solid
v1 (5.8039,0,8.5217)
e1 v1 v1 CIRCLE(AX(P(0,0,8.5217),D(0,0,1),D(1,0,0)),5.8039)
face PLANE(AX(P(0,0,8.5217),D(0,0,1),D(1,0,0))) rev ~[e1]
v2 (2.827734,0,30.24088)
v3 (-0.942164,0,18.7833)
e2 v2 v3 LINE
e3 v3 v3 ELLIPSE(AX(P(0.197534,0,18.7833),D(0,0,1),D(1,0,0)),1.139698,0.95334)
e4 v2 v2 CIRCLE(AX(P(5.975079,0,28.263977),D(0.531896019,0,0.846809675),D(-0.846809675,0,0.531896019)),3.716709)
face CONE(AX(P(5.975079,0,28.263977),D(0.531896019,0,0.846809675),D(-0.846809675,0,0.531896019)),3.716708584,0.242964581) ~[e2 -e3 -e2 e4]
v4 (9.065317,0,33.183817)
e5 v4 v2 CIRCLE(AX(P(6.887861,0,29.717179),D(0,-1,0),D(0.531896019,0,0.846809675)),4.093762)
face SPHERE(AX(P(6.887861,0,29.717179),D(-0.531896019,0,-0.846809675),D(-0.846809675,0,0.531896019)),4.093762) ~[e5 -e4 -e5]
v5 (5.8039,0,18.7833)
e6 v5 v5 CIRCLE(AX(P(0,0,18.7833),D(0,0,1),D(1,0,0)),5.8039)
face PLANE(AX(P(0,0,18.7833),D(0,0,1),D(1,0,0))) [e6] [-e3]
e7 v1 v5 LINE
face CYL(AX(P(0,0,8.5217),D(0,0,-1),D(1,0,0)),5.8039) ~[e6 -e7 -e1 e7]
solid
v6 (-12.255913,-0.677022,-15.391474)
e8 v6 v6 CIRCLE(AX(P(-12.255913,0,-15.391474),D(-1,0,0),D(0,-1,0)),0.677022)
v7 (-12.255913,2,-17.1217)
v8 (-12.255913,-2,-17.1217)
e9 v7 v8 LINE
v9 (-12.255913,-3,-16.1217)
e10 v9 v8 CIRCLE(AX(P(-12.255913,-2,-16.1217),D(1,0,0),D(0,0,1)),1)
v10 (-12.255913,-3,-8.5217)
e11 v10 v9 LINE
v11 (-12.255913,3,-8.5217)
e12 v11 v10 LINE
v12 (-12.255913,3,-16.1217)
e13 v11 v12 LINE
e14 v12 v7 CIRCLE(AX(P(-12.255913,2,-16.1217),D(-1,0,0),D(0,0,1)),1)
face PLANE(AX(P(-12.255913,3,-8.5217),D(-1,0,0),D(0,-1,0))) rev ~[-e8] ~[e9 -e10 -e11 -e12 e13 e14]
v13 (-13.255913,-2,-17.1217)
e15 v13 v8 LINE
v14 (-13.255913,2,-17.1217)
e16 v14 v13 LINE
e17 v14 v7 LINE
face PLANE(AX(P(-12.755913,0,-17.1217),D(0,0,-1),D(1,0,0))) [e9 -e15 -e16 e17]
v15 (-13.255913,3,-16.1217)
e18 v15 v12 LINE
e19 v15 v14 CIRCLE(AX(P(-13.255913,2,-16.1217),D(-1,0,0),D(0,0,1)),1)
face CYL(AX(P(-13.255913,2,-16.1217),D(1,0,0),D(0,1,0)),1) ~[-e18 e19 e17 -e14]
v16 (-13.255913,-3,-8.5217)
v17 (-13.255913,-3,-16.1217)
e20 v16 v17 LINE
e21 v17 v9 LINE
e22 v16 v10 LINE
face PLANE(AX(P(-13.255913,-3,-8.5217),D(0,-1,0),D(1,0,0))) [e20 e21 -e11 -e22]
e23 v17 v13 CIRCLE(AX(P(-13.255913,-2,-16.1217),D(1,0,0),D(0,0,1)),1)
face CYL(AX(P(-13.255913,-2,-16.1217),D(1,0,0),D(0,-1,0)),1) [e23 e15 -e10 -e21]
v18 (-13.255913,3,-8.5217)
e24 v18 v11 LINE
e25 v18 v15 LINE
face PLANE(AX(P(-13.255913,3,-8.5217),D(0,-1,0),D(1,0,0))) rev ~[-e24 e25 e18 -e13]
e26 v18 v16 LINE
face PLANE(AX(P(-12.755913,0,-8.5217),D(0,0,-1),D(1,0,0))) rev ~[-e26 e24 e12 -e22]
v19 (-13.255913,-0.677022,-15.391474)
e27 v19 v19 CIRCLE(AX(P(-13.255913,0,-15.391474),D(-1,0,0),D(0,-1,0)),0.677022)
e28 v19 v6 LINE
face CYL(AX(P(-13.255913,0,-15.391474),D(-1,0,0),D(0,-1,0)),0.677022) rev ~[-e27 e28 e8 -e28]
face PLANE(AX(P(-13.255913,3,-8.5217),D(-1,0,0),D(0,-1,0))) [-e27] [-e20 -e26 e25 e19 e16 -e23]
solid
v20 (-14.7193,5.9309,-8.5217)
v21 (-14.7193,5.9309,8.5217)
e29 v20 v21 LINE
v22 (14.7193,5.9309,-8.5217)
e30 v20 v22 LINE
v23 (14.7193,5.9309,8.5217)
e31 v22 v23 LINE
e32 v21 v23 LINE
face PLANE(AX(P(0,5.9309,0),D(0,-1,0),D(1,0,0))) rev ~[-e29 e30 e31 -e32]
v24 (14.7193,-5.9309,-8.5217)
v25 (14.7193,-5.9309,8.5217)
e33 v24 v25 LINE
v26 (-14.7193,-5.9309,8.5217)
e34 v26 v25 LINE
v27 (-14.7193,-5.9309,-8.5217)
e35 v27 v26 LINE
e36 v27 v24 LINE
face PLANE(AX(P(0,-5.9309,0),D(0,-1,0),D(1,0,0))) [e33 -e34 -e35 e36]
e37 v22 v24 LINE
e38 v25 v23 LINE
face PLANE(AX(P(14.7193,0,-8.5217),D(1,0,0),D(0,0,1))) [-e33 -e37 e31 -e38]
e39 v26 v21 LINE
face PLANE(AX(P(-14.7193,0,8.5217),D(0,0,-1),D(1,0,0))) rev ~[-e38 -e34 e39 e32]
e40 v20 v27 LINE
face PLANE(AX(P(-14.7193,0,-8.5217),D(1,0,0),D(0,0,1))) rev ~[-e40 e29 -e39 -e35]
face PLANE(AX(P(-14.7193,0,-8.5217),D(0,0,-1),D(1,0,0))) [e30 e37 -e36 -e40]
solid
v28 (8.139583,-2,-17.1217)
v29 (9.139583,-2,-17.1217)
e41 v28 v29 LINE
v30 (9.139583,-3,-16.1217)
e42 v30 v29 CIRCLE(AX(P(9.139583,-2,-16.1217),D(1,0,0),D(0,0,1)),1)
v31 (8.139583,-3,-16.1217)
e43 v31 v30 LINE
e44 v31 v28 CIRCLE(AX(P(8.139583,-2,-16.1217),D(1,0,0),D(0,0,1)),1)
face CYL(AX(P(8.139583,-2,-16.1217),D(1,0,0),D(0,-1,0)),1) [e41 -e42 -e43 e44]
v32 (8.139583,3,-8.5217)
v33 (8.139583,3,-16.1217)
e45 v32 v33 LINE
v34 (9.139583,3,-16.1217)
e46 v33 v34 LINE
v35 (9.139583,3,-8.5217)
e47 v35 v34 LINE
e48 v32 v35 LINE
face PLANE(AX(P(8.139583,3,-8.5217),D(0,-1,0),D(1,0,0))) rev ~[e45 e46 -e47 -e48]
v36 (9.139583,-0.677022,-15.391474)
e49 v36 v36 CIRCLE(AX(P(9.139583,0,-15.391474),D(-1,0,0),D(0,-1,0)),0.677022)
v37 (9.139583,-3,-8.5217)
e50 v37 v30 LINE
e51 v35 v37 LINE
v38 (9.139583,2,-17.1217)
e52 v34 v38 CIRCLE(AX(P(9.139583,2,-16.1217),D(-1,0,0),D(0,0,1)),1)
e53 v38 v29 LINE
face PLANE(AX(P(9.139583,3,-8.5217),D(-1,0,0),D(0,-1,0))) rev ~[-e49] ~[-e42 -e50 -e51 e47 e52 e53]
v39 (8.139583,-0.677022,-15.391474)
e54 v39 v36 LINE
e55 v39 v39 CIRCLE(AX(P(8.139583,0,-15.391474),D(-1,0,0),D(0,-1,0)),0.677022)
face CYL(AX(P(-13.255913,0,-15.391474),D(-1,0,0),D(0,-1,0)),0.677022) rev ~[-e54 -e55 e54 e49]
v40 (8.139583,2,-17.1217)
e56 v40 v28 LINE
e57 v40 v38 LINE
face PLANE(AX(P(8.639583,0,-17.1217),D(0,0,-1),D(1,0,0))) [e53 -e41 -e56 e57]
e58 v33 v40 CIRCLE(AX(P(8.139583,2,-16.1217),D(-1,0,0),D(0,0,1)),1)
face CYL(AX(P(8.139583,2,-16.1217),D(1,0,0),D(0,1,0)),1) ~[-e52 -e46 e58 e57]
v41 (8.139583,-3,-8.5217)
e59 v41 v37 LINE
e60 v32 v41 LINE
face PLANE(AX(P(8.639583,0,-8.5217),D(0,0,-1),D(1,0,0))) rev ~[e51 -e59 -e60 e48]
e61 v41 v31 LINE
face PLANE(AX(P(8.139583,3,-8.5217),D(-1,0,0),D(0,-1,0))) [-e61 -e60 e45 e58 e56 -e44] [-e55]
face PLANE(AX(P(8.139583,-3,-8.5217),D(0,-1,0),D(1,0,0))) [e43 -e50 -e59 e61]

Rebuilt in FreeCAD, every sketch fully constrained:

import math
import FreeCAD as App
import Part
import Sketcher
Q = App.Units.Quantity


def edges_at(feature, points):
    """Names of the edges that pass closest to the given points."""
    edges = feature.Shape.Edges
    near = lambda p: min(range(len(edges)), key=lambda i: edges[i].distToShape(Part.Vertex(*p))[0])
    return sorted({f"Edge{near(p) + 1}" for p in points})

doc = App.newDocument("Part")
params = doc.addObject("Spreadsheet::Sheet", "Params")
for row, (alias, value) in enumerate([
    ("pad1_length", "11.8618 mm"),
    ("pad2_length", "10.2616 mm"),
    ("revolution_angle", "360 deg"),
    ("sketch4_width", "1 mm"),
    ("sketch4_height", "6 mm"),
    ("pad3_length", "8.6 mm"),
    ("fillet_radius", "1 mm"),
    ("sketch5_width", "1 mm"),
    ("sketch5_height", "6 mm"),
    ("pad4_length", "8.6 mm"),
    ("fillet2_radius", "1 mm"),
    ("pad5_length", "500 mm"),
], start=1):
    params.set(f"A{row}", alias)
    params.set(f"B{row}", "=" + value)
    params.setAlias(f"B{row}", alias)

body = doc.addObject("PartDesign::Body", "Body")

# Sketch on XZ plane
sketch1 = body.newObject("Sketcher::SketchObject", "Sketch")
sketch1.AttachmentSupport = (doc.getObject("XZ_Plane"), [""])
sketch1.MapMode = "FlatFace"
sketch1.addGeometry(Part.LineSegment(App.Vector(-15, 9, 0), App.Vector(-15, -9, 0)), False)
sketch1.addGeometry(Part.LineSegment(App.Vector(-15, -9, 0), App.Vector(15, -9, 0)), False)
sketch1.addGeometry(Part.LineSegment(App.Vector(15, -9, 0), App.Vector(15, 9, 0)), False)
sketch1.addGeometry(Part.LineSegment(App.Vector(15, 9, 0), App.Vector(-15, 9, 0)), False)
sketch1.addConstraint(Sketcher.Constraint("Coincident", 0, 2, 1, 1))
sketch1.addConstraint(Sketcher.Constraint("Coincident", 1, 2, 2, 1))
sketch1.addConstraint(Sketcher.Constraint("Coincident", 2, 2, 3, 1))
sketch1.addConstraint(Sketcher.Constraint("Coincident", 3, 2, 0, 1))
sketch1.addConstraint(Sketcher.Constraint("Vertical", 0))
sketch1.addConstraint(Sketcher.Constraint("Horizontal", 1))
sketch1.addConstraint(Sketcher.Constraint("Vertical", 2))
sketch1.addConstraint(Sketcher.Constraint("Horizontal", 3))
sketch1.addConstraint(Sketcher.Constraint("Symmetric", 0, 2, 2, 2, -1, 1))
sketch1.addConstraint(Sketcher.Constraint("DistanceX", 1, 1, 1, 2, Q("29.4386 mm")))
sketch1.addConstraint(Sketcher.Constraint("DistanceY", 0, 2, 0, 1, Q("17.0434 mm")))
pad1 = body.newObject("PartDesign::Pad", "Pad")
pad1.Profile = sketch1
pad1.setExpression("Length", "Params.pad1_length")
pad1.Midplane = True
body2 = doc.addObject("PartDesign::Body", "Body001")

# Sketch on XY plane
sketch2 = body2.newObject("Sketcher::SketchObject", "Sketch001")
sketch2.AttachmentSupport = (doc.getObject("XY_Plane001"), [""])
sketch2.MapMode = "FlatFace"
sketch2.AttachmentOffset = App.Placement(App.Vector(0, 0, 8.5217), App.Rotation())
sketch2.addGeometry(Part.Circle(App.Vector(0, 0, 0), App.Vector(0, 0, 1), 6), False)
sketch2.addConstraint(Sketcher.Constraint("Coincident", 0, 3, -1, 1))
sketch2.addConstraint(Sketcher.Constraint("Diameter", 0, Q("11.6078 mm")))
pad2 = body2.newObject("PartDesign::Pad", "Pad001")
pad2.Profile = sketch2
pad2.setExpression("Length", "Params.pad2_length")

# Sketch on XZ plane
sketch3 = body2.newObject("Sketcher::SketchObject", "Sketch002")
sketch3.AttachmentSupport = (doc.getObject("XZ_Plane001"), [""])
sketch3.MapMode = "FlatFace"
sketch3.addGeometry(Part.LineSegment(App.Vector(-1, 18.8, 0), App.Vector(0, 18.8, 0)), False)
sketch3.addGeometry(Part.LineSegment(App.Vector(0, 18.8, 0), App.Vector(9.1, 33.2, 0)), False)
sketch3.addGeometry(Part.ArcOfCircle(Part.Circle(App.Vector(6.9, 29.7, 0), App.Vector(0, 0, 1), 4.1), math.radians(58), math.radians(173)), False)
sketch3.addGeometry(Part.LineSegment(App.Vector(2.8, 30.2, 0), App.Vector(-1, 18.8, 0)), False)
sketch3.addGeometry(Part.LineSegment(App.Vector(-0.3, 18.3, 0), App.Vector(9.1, 33.2, 0)), True)  # axis
sketch3.addConstraint(Sketcher.Constraint("Coincident", 0, 2, 1, 1))
sketch3.addConstraint(Sketcher.Constraint("Coincident", 1, 2, 2, 1))
sketch3.addConstraint(Sketcher.Constraint("Coincident", 2, 2, 3, 1))
sketch3.addConstraint(Sketcher.Constraint("Coincident", 3, 2, 0, 1))
sketch3.addConstraint(Sketcher.Constraint("Horizontal", 0))
sketch3.addConstraint(Sketcher.Constraint("Coincident", 4, 2, 1, 2))
sketch3.addConstraint(Sketcher.Constraint("PointOnObject", 0, 2, -2))
sketch3.addConstraint(Sketcher.Constraint("Parallel", 1, 4))
sketch3.addConstraint(Sketcher.Constraint("Radius", 2, Q("4.093762 mm")))
sketch3.addConstraint(Sketcher.Constraint("Distance", 1, Q("17.0434 mm")))
sketch3.addConstraint(Sketcher.Constraint("DistanceY", -1, 1, 0, 2, Q("18.751301 mm")))
sketch3.addConstraint(Sketcher.Constraint("DistanceY", 2, 3, 2, 2, Q("0.5237 mm")))
sketch3.addConstraint(Sketcher.Constraint("Distance", 3, Q("12.095538 mm")))
sketch3.addConstraint(Sketcher.Constraint("DistanceX", 0, 1, 0, 2, Q("0.952693 mm")))
sketch3.addConstraint(Sketcher.Constraint("DistanceX", 4, 1, -1, 1, Q("0.26953 mm")))
sketch3.addConstraint(Sketcher.Constraint("DistanceX", 3, 2, 1, 2, Q("10.01801 mm")))
revolution = body2.newObject("PartDesign::Revolution", "Revolution")
revolution.Profile = sketch3
revolution.ReferenceAxis = (sketch3, ["Axis0"])
revolution.setExpression("Angle", "Params.revolution_angle")
body3 = doc.addObject("PartDesign::Body", "Body002")

# Sketch on XY plane
sketch4 = body3.newObject("Sketcher::SketchObject", "Sketch003")
sketch4.AttachmentSupport = (doc.getObject("XY_Plane002"), [""])
sketch4.MapMode = "FlatFace"
sketch4.AttachmentOffset = App.Placement(App.Vector(0, 0, -8.5217), App.Rotation())
sketch4.addGeometry(Part.LineSegment(App.Vector(8.1, -3, 0), App.Vector(8.1, 3, 0)), False)
sketch4.addGeometry(Part.LineSegment(App.Vector(8.1, 3, 0), App.Vector(9.1, 3, 0)), False)
sketch4.addGeometry(Part.LineSegment(App.Vector(9.1, 3, 0), App.Vector(9.1, -3, 0)), False)
sketch4.addGeometry(Part.LineSegment(App.Vector(9.1, -3, 0), App.Vector(8.1, -3, 0)), False)
sketch4.addConstraint(Sketcher.Constraint("Coincident", 0, 2, 1, 1))
sketch4.addConstraint(Sketcher.Constraint("Coincident", 1, 2, 2, 1))
sketch4.addConstraint(Sketcher.Constraint("Coincident", 2, 2, 3, 1))
sketch4.addConstraint(Sketcher.Constraint("Coincident", 3, 2, 0, 1))
sketch4.addConstraint(Sketcher.Constraint("Vertical", 0))
sketch4.addConstraint(Sketcher.Constraint("Horizontal", 1))
sketch4.addConstraint(Sketcher.Constraint("Vertical", 2))
sketch4.addConstraint(Sketcher.Constraint("Horizontal", 3))
sketch4.addConstraint(Sketcher.Constraint("DistanceX", 1, 1, 1, 2, Q("1 mm")))
sketch4.addConstraint(Sketcher.Constraint("DistanceY", 0, 1, 0, 2, Q("6 mm")))
sketch4.addConstraint(Sketcher.Constraint("DistanceY", -1, 1, 0, 2, Q("3 mm")))
sketch4.addConstraint(Sketcher.Constraint("DistanceX", -1, 1, 0, 2, Q("8.139583 mm")))
sketch4.setExpression("Constraints[8]", "Params.sketch4_width")
sketch4.setExpression("Constraints[9]", "Params.sketch4_height")
pad3 = body3.newObject("PartDesign::Pad", "Pad002")
pad3.Profile = sketch4
pad3.setExpression("Length", "Params.pad3_length")
pad3.Reversed = True
doc.recompute()

fillet = body3.newObject("PartDesign::Fillet", "Fillet")
fillet.Base = (pad3, edges_at(pad3, [(8.64, 3, -17.122), (8.64, -3, -17.122)]))
fillet.setExpression("Radius", "Params.fillet_radius")
body4 = doc.addObject("PartDesign::Body", "Body003")

# Sketch on XY plane
sketch5 = body4.newObject("Sketcher::SketchObject", "Sketch004")
sketch5.AttachmentSupport = (doc.getObject("XY_Plane003"), [""])
sketch5.MapMode = "FlatFace"
sketch5.AttachmentOffset = App.Placement(App.Vector(0, 0, -8.5217), App.Rotation())
sketch5.addGeometry(Part.LineSegment(App.Vector(-13.3, -3, 0), App.Vector(-13.3, 3, 0)), False)
sketch5.addGeometry(Part.LineSegment(App.Vector(-13.3, 3, 0), App.Vector(-12.3, 3, 0)), False)
sketch5.addGeometry(Part.LineSegment(App.Vector(-12.3, 3, 0), App.Vector(-12.3, -3, 0)), False)
sketch5.addGeometry(Part.LineSegment(App.Vector(-12.3, -3, 0), App.Vector(-13.3, -3, 0)), False)
sketch5.addConstraint(Sketcher.Constraint("Coincident", 0, 2, 1, 1))
sketch5.addConstraint(Sketcher.Constraint("Coincident", 1, 2, 2, 1))
sketch5.addConstraint(Sketcher.Constraint("Coincident", 2, 2, 3, 1))
sketch5.addConstraint(Sketcher.Constraint("Coincident", 3, 2, 0, 1))
sketch5.addConstraint(Sketcher.Constraint("Vertical", 0))
sketch5.addConstraint(Sketcher.Constraint("Horizontal", 1))
sketch5.addConstraint(Sketcher.Constraint("Vertical", 2))
sketch5.addConstraint(Sketcher.Constraint("Horizontal", 3))
sketch5.addConstraint(Sketcher.Constraint("DistanceX", 1, 1, 1, 2, Q("1 mm")))
sketch5.addConstraint(Sketcher.Constraint("DistanceY", 0, 1, 0, 2, Q("6 mm")))
sketch5.addConstraint(Sketcher.Constraint("DistanceY", -1, 1, 0, 2, Q("3 mm")))
sketch5.addConstraint(Sketcher.Constraint("DistanceX", 0, 2, -1, 1, Q("13.255913 mm")))
sketch5.setExpression("Constraints[8]", "Params.sketch5_width")
sketch5.setExpression("Constraints[9]", "Params.sketch5_height")
pad4 = body4.newObject("PartDesign::Pad", "Pad003")
pad4.Profile = sketch5
pad4.setExpression("Length", "Params.pad4_length")
pad4.Reversed = True
doc.recompute()

fillet2 = body4.newObject("PartDesign::Fillet", "Fillet001")
fillet2.Base = (pad4, edges_at(pad4, [(-12.756, -3, -17.122), (-12.756, 3, -17.122)]))
fillet2.setExpression("Radius", "Params.fillet2_radius")
body5 = doc.addObject("PartDesign::Body", "Body004")

# Sketch on YZ plane
sketch6 = body5.newObject("Sketcher::SketchObject", "Sketch005")
sketch6.AttachmentSupport = (doc.getObject("YZ_Plane004"), [""])
sketch6.MapMode = "FlatFace"
sketch6.AttachmentOffset = App.Placement(App.Vector(0, 0, -13.255913), App.Rotation())
sketch6.addGeometry(Part.Circle(App.Vector(0, -15.4, 0), App.Vector(0, 0, 1), 0.7), False)
sketch6.addConstraint(Sketcher.Constraint("PointOnObject", 0, 3, -2))
sketch6.addConstraint(Sketcher.Constraint("Diameter", 0, Q("1.354045 mm")))
sketch6.addConstraint(Sketcher.Constraint("DistanceY", 0, 3, -1, 1, Q("15.391474 mm")))
pad5 = body5.newObject("PartDesign::Pad", "Pad004")
pad5.Profile = sketch6
pad5.setExpression("Length", "Params.pad5_length")
doc.recompute()

body6 = doc.addObject("PartDesign::Body", "Body005")
body6.BaseFeature = body5
boolean = body3.newObject("PartDesign::Boolean", "Boolean")
boolean.Type = "Cut"
boolean.addObjects([body6])
doc.recompute()

boolean2 = body4.newObject("PartDesign::Boolean", "Boolean001")
boolean2.Type = "Cut"
boolean2.addObjects([body5])

doc.recompute()
